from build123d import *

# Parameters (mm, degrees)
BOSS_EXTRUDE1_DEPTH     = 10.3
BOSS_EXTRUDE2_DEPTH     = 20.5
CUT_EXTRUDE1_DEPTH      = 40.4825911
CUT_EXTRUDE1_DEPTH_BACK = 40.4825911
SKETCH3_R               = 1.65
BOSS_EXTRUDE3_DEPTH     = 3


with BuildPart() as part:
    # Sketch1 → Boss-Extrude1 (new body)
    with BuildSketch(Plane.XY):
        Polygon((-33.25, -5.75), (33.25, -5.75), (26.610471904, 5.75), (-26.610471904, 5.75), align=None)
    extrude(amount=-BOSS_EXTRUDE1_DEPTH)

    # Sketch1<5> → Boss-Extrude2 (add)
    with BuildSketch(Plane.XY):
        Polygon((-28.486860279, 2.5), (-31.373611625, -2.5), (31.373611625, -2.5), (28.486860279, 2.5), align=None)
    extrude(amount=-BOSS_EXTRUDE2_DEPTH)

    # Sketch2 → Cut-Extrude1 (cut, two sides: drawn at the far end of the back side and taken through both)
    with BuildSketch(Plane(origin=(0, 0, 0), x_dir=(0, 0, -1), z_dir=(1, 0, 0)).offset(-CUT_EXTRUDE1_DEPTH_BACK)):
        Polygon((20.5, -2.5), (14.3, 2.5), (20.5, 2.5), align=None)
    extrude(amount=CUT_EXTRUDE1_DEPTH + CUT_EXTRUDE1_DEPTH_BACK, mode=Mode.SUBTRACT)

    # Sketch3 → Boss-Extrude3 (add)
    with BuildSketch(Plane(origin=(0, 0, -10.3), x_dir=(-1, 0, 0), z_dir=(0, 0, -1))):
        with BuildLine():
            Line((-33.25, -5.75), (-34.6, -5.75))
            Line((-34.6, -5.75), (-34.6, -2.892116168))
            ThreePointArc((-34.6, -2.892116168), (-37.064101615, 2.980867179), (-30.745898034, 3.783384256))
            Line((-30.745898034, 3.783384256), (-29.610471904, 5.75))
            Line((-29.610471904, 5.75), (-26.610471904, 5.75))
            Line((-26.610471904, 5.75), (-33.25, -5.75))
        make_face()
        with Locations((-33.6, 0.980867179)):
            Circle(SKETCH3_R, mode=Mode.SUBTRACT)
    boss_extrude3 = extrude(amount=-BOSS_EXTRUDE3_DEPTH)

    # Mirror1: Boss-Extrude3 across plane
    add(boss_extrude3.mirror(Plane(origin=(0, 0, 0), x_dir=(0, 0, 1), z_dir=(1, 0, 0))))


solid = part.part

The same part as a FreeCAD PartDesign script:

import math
import FreeCAD as App
import Part
import Sketcher
from FreeCAD import Vector
Q = App.Units.Quantity

doc = App.newDocument("Part")
body = doc.addObject("PartDesign::Body", "Body")

sketch1 = body.newObject("Sketcher::SketchObject", "Sketch")
sketch1.AttachmentSupport = (doc.getObject("XY_Plane"), [""])
sketch1.MapMode = "FlatFace"
sketch1.addGeometry([
    Part.LineSegment(Vector(-33.25, -5.75, 0), Vector(33.25, -5.75, 0)),
    Part.LineSegment(Vector(33.25, -5.75, 0), Vector(26.610472, 5.75, 0)),
    Part.LineSegment(Vector(26.610472, 5.75, 0), Vector(-26.610472, 5.75, 0)),
    Part.LineSegment(Vector(-26.610472, 5.75, 0), Vector(-33.25, -5.75, 0)),
], False)
sketch1.addConstraint([
    Sketcher.Constraint("Coincident", 0, 2, 1, 1),
    Sketcher.Constraint("Coincident", 1, 2, 2, 1),
    Sketcher.Constraint("Coincident", 2, 2, 3, 1),
    Sketcher.Constraint("Coincident", 3, 2, 0, 1),
    Sketcher.Constraint("Horizontal", 0),
    Sketcher.Constraint("Horizontal", 2),
    Sketcher.Constraint("Equal", 1, 3),
    Sketcher.Constraint("Angle", 1, Q("120 deg")),
    Sketcher.Constraint("DistanceX", 0, 1, 0, 2, 66.5),
    Sketcher.Constraint("DistanceY", 0, 2, 1, 2, 11.5),
    Sketcher.Constraint("DistanceX", -1, 1, 0, 2, 33.25),
    Sketcher.Constraint("DistanceY", 0, 2, -1, 1, 5.75),
])
pad1 = body.newObject("PartDesign::Pad", "Pad")
pad1.Profile = sketch1
pad1.Length = 10.3
pad1.Reversed = True

sketch2 = body.newObject("Sketcher::SketchObject", "Sketch001")
sketch2.AttachmentSupport = (doc.getObject("XY_Plane"), [""])
sketch2.MapMode = "FlatFace"
sketch2.addGeometry([
    Part.LineSegment(Vector(-28.48686, 2.5, 0), Vector(-31.373612, -2.5, 0)),
    Part.LineSegment(Vector(-31.373612, -2.5, 0), Vector(31.373612, -2.5, 0)),
    Part.LineSegment(Vector(31.373612, -2.5, 0), Vector(28.48686, 2.5, 0)),
    Part.LineSegment(Vector(28.48686, 2.5, 0), Vector(-28.48686, 2.5, 0)),
], False)
sketch2.addConstraint([
    Sketcher.Constraint("Coincident", 0, 2, 1, 1),
    Sketcher.Constraint("Coincident", 1, 2, 2, 1),
    Sketcher.Constraint("Coincident", 2, 2, 3, 1),
    Sketcher.Constraint("Coincident", 3, 2, 0, 1),
    Sketcher.Constraint("Horizontal", 1),
    Sketcher.Constraint("Horizontal", 3),
    Sketcher.Constraint("Equal", 0, 2),
    Sketcher.Constraint("Angle", 0, Q("-120 deg")),
    Sketcher.Constraint("DistanceY", 1, 2, 2, 2, 5.0),
    Sketcher.Constraint("DistanceY", 0, 2, -1, 1, 2.5),
    Sketcher.Constraint("DistanceX", 3, 2, 3, 1, 56.973721),
    Sketcher.Constraint("DistanceX", 0, 2, -1, 1, 31.373612),
])
pad2 = body.newObject("PartDesign::Pad", "Pad001")
pad2.Profile = sketch2
pad2.Length = 20.5
pad2.Reversed = True

sketch3 = body.newObject("Sketcher::SketchObject", "Sketch002")
sketch3.AttachmentSupport = (doc.getObject("YZ_Plane"), [""])
sketch3.MapMode = "FlatFace"
sketch3.addGeometry([
    Part.LineSegment(Vector(2.5, -14.3, 0), Vector(-2.5, -20.5, 0)),
    Part.LineSegment(Vector(-2.5, -20.5, 0), Vector(2.5, -20.5, 0)),
    Part.LineSegment(Vector(2.5, -20.5, 0), Vector(2.5, -14.3, 0)),
], False)
sketch3.addConstraint([
    Sketcher.Constraint("Coincident", 0, 2, 1, 1),
    Sketcher.Constraint("Coincident", 1, 2, 2, 1),
    Sketcher.Constraint("Coincident", 2, 2, 0, 1),
    Sketcher.Constraint("Horizontal", 1),
    Sketcher.Constraint("Vertical", 2),
    Sketcher.Constraint("DistanceX", 1, 1, 1, 2, 5.0),
    Sketcher.Constraint("DistanceY", 2, 1, 2, 2, 6.2),
    Sketcher.Constraint("DistanceX", 0, 2, -1, 1, 2.5),
    Sketcher.Constraint("DistanceY", 0, 2, -1, 1, 20.5),
])
pocket1 = body.newObject("PartDesign::Pocket", "Pocket")
pocket1.Profile = sketch3
pocket1.Type = "ThroughAll"
pocket1.Midplane = True

sketch4 = body.newObject("Sketcher::SketchObject", "Sketch003")
sketch4.AttachmentSupport = (doc.getObject("XY_Plane"), [""])
sketch4.MapMode = "FlatFace"
sketch4.AttachmentOffset = App.Placement(Vector(0, 0, -10.3), App.Rotation())
sketch4.addGeometry([
    Part.LineSegment(Vector(34.6, -5.75, 0), Vector(33.25, -5.75, 0)),
    Part.LineSegment(Vector(33.25, -5.75, 0), Vector(26.610472, 5.75, 0)),
    Part.LineSegment(Vector(26.610472, 5.75, 0), Vector(29.610472, 5.75, 0)),
    Part.LineSegment(Vector(29.610472, 5.75, 0), Vector(30.745898, 3.783384, 0)),
    Part.ArcOfCircle(Part.Circle(Vector(33.6, 0.980867, 0), Vector(0, 0, 1), 4), math.radians(-75.522488), math.radians(135.522488)),
    Part.LineSegment(Vector(34.6, -2.892116, 0), Vector(34.6, -5.75, 0)),
    Part.Circle(Vector(33.6, 0.980867, 0), Vector(0, 0, 1), 1.65),
], False)
sketch4.addConstraint([
    Sketcher.Constraint("Coincident", 0, 2, 1, 1),
    Sketcher.Constraint("Coincident", 1, 2, 2, 1),
    Sketcher.Constraint("Coincident", 2, 2, 3, 1),
    Sketcher.Constraint("Coincident", 3, 2, 4, 2),
    Sketcher.Constraint("Coincident", 4, 1, 5, 1),
    Sketcher.Constraint("Coincident", 5, 2, 0, 1),
    Sketcher.Constraint("Horizontal", 0),
    Sketcher.Constraint("Horizontal", 2),
    Sketcher.Constraint("Vertical", 5),
    Sketcher.Constraint("Coincident", 6, 3, 4, 3),
    Sketcher.Constraint("Parallel", 1, 3),
    Sketcher.Constraint("Radius", 4, 4.0),
    Sketcher.Constraint("Diameter", 6, 3.3),
    Sketcher.Constraint("DistanceX", 2, 1, 2, 2, 3.0),
    Sketcher.Constraint("Angle", 1, Q("120 deg")),
    Sketcher.Constraint("DistanceX", 4, 3, 4, 1, 1.0),
    Sketcher.Constraint("DistanceX", 0, 2, 0, 1, 1.35),
    Sketcher.Constraint("DistanceX", -1, 1, 4, 3, 33.6),
    Sketcher.Constraint("DistanceY", 0, 2, 1, 2, 11.5),
    Sketcher.Constraint("DistanceY", 0, 2, -1, 1, 5.75),
    Sketcher.Constraint("DistanceX", -1, 1, 3, 2, 30.745898),
])
pad3 = body.newObject("PartDesign::Pad", "Pad002")
pad3.Profile = sketch4
pad3.Length = 3
doc.recompute()

mirrored = body.newObject("PartDesign::Mirrored", "Mirrored")
mirrored.Originals = [pad3]
mirrored.MirrorPlane = (doc.getObject("YZ_Plane"), [""])
body.Tip = mirrored

doc.recompute()
